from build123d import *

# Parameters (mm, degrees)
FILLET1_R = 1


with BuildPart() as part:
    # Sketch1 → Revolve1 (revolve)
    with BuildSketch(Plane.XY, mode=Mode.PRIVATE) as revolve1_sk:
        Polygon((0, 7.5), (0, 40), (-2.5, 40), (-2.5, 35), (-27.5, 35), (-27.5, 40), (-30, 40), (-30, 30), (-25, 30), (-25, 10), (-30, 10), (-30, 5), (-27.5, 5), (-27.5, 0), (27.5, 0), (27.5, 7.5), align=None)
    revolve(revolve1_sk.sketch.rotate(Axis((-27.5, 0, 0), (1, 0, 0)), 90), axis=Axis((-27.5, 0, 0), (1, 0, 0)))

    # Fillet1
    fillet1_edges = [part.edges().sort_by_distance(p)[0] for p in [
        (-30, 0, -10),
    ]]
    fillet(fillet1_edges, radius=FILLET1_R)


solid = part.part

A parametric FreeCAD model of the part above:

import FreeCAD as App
import Part
import Sketcher
from FreeCAD import Vector
Q = App.Units.Quantity


def edges_at(feature, points):
    """Names of the edges that pass closest to the given points."""
    edges = feature.Shape.Edges
    near = lambda p: min(range(len(edges)), key=lambda i: edges[i].distToShape(Part.Vertex(*p))[0])
    return sorted({f"Edge{near(p) + 1}" for p in points})


def add_polygon(sketch, points):
    """Adds a closed chain of lines whose ends are joined by coincident constraints."""
    first, n = sketch.GeometryCount, len(points)
    for a, b in zip(points, points[1:] + points[:1]):
        sketch.addGeometry(Part.LineSegment(App.Vector(*a, 0), App.Vector(*b, 0)), False)
    for i in range(n):
        sketch.addConstraint(Sketcher.Constraint("Coincident", first + i, 2, first + (i + 1) % n, 1))

doc = App.newDocument("Part")
params = doc.addObject("Spreadsheet::Sheet", "Params")
for row, (alias, value) in enumerate([
    ("sketch1_width", "25 mm"),
    ("sketch1_width2", "5 mm"),
    ("sketch1_width3", "55 mm"),
    ("sketch1_height", "10 mm"),
    ("sketch1_height2", "20 mm"),
    ("revolution_angle", "360 deg"),
    ("fillet_radius", "1 mm"),
], start=1):
    params.set(f"A{row}", alias)
    params.set(f"B{row}", "=" + value)
    params.setAlias(f"B{row}", alias)

body = doc.addObject("PartDesign::Body", "Body")

sketch1 = body.newObject("Sketcher::SketchObject", "Sketch")
sketch1.AttachmentSupport = (doc.getObject("XY_Plane"), [""])
sketch1.MapMode = "FlatFace"
add_polygon(sketch1, [(0, 7.5), (0, 40), (-2.5, 40), (-2.5, 35), (-27.5, 35), (-27.5, 40), (-30, 40), (-30, 30), (-25, 30), (-25, 10), (-30, 10), (-30, 5), (-27.5, 5), (-27.5, 0), (27.5, 0), (27.5, 7.5)])
sketch1.addConstraint(Sketcher.Constraint("Vertical", 0))
sketch1.addConstraint(Sketcher.Constraint("Horizontal", 1))
sketch1.addConstraint(Sketcher.Constraint("Vertical", 2))
sketch1.addConstraint(Sketcher.Constraint("Horizontal", 3))
sketch1.addConstraint(Sketcher.Constraint("Vertical", 4))
sketch1.addConstraint(Sketcher.Constraint("Horizontal", 5))
sketch1.addConstraint(Sketcher.Constraint("Vertical", 6))
sketch1.addConstraint(Sketcher.Constraint("Horizontal", 7))
sketch1.addConstraint(Sketcher.Constraint("Vertical", 8))
sketch1.addConstraint(Sketcher.Constraint("Horizontal", 9))
sketch1.addConstraint(Sketcher.Constraint("Vertical", 10))
sketch1.addConstraint(Sketcher.Constraint("Horizontal", 11))
sketch1.addConstraint(Sketcher.Constraint("Vertical", 12))
sketch1.addConstraint(Sketcher.Constraint("Horizontal", 13))
sketch1.addConstraint(Sketcher.Constraint("Vertical", 14))
sketch1.addConstraint(Sketcher.Constraint("Horizontal", 15))
sketch1.addConstraint(Sketcher.Constraint("Symmetric", 12, 2, 13, 2, -1, 1))
sketch1.addConstraint(Sketcher.Constraint("PointOnObject", 0, 2, -2))
sketch1.addConstraint(Sketcher.Constraint("Horizontal", 1, 2, 4, 2))
sketch1.addConstraint(Sketcher.Constraint("Vertical", 6, 2, 9, 2))
sketch1.addConstraint(Sketcher.Constraint("Vertical", 4, 2, 11, 2))
sketch1.addConstraint(Sketcher.Constraint("Equal", 1, 5))
sketch1.addConstraint(Sketcher.Constraint("Equal", 9, 2))
sketch1.addConstraint(Sketcher.Constraint("Equal", 4, 10))
sketch1.addConstraint(Sketcher.Constraint("Equal", 10, 12))
sketch1.addConstraint(Sketcher.Constraint("DistanceX", 3, 2, 3, 1, Q("25 mm")))
sketch1.addConstraint(Sketcher.Constraint("DistanceX", 7, 1, 7, 2, Q("5 mm")))
sketch1.addConstraint(Sketcher.Constraint("DistanceX", 13, 1, 13, 2, Q("55 mm")))
sketch1.addConstraint(Sketcher.Constraint("DistanceY", 6, 2, 6, 1, Q("10 mm")))
sketch1.addConstraint(Sketcher.Constraint("DistanceY", 8, 2, 8, 1, Q("20 mm")))
sketch1.addConstraint(Sketcher.Constraint("DistanceY", 0, 1, 0, 2, Q("32.5 mm")))
sketch1.setExpression("Constraints[41]", "Params.sketch1_width")
sketch1.setExpression("Constraints[42]", "Params.sketch1_width2")
sketch1.setExpression("Constraints[43]", "Params.sketch1_width3")
sketch1.setExpression("Constraints[44]", "Params.sketch1_height")
sketch1.setExpression("Constraints[45]", "Params.sketch1_height2")
revolution = body.newObject("PartDesign::Revolution", "Revolution")
revolution.Profile = sketch1
revolution.ReferenceAxis = (sketch1, ["H_Axis"])
revolution.setExpression("Angle", "Params.revolution_angle")
doc.recompute()

fillet = body.newObject("PartDesign::Fillet", "Fillet")
fillet.Base = (revolution, edges_at(revolution, [(-30, 0, -10)]))
fillet.setExpression("Radius", "Params.fillet_radius")

doc.recompute()
